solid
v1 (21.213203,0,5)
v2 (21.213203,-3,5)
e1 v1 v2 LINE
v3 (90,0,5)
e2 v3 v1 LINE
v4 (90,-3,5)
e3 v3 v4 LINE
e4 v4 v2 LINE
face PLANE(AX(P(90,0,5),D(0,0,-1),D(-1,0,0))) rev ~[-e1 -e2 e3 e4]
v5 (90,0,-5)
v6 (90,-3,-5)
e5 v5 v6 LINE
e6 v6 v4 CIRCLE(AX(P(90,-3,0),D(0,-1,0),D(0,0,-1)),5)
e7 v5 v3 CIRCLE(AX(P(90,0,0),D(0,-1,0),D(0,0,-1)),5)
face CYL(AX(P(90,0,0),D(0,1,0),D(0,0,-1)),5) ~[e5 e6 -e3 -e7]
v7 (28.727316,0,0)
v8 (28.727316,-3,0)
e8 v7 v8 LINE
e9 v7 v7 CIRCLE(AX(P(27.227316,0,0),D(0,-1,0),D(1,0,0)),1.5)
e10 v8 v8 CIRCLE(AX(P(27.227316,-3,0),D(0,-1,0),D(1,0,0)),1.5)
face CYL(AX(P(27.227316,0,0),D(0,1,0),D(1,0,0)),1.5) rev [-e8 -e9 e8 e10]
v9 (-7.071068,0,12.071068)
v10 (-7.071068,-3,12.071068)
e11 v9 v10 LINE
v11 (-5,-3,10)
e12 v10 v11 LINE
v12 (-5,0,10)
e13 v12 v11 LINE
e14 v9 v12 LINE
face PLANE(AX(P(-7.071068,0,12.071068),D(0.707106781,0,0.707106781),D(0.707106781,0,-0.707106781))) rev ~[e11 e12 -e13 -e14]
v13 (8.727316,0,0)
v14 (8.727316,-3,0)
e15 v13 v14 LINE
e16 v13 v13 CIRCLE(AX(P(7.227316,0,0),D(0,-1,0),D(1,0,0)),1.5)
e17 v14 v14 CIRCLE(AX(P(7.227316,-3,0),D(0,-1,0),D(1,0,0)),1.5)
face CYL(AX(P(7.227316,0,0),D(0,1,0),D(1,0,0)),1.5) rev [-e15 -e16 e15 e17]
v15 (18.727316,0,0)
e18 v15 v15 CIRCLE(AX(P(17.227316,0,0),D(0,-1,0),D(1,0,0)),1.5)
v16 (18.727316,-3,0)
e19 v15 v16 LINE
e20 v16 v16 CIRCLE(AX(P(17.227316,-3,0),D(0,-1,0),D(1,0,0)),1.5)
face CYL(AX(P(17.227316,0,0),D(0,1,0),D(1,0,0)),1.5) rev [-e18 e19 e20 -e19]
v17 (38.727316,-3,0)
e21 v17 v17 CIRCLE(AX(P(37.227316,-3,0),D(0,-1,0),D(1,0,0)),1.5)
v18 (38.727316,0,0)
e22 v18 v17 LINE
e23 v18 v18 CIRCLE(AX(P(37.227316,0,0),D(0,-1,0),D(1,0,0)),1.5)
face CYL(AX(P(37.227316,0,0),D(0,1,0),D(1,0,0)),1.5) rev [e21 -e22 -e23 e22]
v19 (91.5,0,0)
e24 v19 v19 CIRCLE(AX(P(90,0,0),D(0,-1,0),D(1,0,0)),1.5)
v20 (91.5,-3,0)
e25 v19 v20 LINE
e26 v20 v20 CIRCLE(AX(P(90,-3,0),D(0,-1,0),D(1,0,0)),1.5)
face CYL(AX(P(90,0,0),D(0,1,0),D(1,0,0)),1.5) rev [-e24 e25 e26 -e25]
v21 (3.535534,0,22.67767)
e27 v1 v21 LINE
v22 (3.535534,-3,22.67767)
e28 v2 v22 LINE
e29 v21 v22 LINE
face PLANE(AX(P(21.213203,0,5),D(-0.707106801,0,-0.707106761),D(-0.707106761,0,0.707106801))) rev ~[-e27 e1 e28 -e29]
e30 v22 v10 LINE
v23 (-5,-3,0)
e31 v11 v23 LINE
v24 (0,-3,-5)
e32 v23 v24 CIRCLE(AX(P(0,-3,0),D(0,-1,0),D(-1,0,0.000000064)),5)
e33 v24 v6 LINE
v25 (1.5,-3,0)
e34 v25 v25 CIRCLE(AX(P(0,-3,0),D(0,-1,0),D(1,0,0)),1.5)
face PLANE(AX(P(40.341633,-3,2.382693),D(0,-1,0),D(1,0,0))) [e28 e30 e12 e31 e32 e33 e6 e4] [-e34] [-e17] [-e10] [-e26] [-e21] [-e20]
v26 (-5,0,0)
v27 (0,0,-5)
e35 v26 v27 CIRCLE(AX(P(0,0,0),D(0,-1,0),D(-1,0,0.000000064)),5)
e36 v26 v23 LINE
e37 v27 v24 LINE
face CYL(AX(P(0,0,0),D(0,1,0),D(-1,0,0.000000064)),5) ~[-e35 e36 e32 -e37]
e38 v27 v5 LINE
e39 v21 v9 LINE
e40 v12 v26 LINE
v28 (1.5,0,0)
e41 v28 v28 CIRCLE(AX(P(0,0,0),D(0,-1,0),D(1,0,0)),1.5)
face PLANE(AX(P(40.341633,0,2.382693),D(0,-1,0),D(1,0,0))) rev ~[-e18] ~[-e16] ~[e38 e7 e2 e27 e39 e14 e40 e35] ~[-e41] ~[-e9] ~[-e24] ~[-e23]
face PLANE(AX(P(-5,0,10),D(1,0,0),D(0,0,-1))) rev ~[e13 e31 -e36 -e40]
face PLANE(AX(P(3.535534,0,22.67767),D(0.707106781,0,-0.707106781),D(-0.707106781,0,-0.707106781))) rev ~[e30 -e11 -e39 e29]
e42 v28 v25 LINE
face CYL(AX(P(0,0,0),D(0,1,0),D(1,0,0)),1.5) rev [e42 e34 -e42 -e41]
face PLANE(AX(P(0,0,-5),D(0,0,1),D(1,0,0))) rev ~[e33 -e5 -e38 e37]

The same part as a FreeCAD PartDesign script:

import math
import FreeCAD as App
import Part
import Sketcher
Q = App.Units.Quantity

doc = App.newDocument("Part")
body = doc.addObject("PartDesign::Body", "Body")

sketch1 = body.newObject("Sketcher::SketchObject", "Sketch")
sketch1.AttachmentSupport = (doc.getObject("XZ_Plane"), [""])
sketch1.MapMode = "FlatFace"
sketch1.addGeometry(Part.LineSegment(App.Vector(0, -5, 0), App.Vector(90, -5, 0)), False)
sketch1.addGeometry(Part.ArcOfCircle(Part.Circle(App.Vector(90, 0, 0), App.Vector(0, 0, 1), 5), math.radians(-90), math.radians(90)), False)
sketch1.addGeometry(Part.LineSegment(App.Vector(90, 5, 0), App.Vector(21.2, 5, 0)), False)
sketch1.addGeometry(Part.LineSegment(App.Vector(21.2, 5, 0), App.Vector(3.5, 22.7, 0)), False)
sketch1.addGeometry(Part.LineSegment(App.Vector(3.5, 22.7, 0), App.Vector(-7.1, 12.1, 0)), False)
sketch1.addGeometry(Part.LineSegment(App.Vector(-7.1, 12.1, 0), App.Vector(-5, 10, 0)), False)
sketch1.addGeometry(Part.LineSegment(App.Vector(-5, 10, 0), App.Vector(-5, 0, 0)), False)
sketch1.addGeometry(Part.ArcOfCircle(Part.Circle(App.Vector(0, 0, 0), App.Vector(0, 0, 1), 5), math.radians(180), math.radians(270)), False)
sketch1.addGeometry(Part.Circle(App.Vector(0, 0, 0), App.Vector(0, 0, 1), 1.5), False)
sketch1.addGeometry(Part.Circle(App.Vector(7.2, 0, 0), App.Vector(0, 0, 1), 1.5), False)
sketch1.addGeometry(Part.Circle(App.Vector(17.2, 0, 0), App.Vector(0, 0, 1), 1.5), False)
sketch1.addGeometry(Part.Circle(App.Vector(27.2, 0, 0), App.Vector(0, 0, 1), 1.5), False)
sketch1.addGeometry(Part.Circle(App.Vector(37.2, 0, 0), App.Vector(0, 0, 1), 1.5), False)
sketch1.addGeometry(Part.Circle(App.Vector(90, 0, 0), App.Vector(0, 0, 1), 1.5), False)
sketch1.addConstraint(Sketcher.Constraint("Tangent", 0, 2, 1, 1))
sketch1.addConstraint(Sketcher.Constraint("Tangent", 1, 2, 2, 1))
sketch1.addConstraint(Sketcher.Constraint("Coincident", 2, 2, 3, 1))
sketch1.addConstraint(Sketcher.Constraint("Coincident", 3, 2, 4, 1))
sketch1.addConstraint(Sketcher.Constraint("Coincident", 4, 2, 5, 1))
sketch1.addConstraint(Sketcher.Constraint("Coincident", 5, 2, 6, 1))
sketch1.addConstraint(Sketcher.Constraint("Tangent", 6, 2, 7, 1))
sketch1.addConstraint(Sketcher.Constraint("Tangent", 7, 2, 0, 1))
sketch1.addConstraint(Sketcher.Constraint("Horizontal", 0))
sketch1.addConstraint(Sketcher.Constraint("Horizontal", 2))
sketch1.addConstraint(Sketcher.Constraint("Vertical", 6))
sketch1.addConstraint(Sketcher.Constraint("Coincident", 7, 3, -1, 1))
sketch1.addConstraint(Sketcher.Constraint("Coincident", 8, 3, -1, 1))
sketch1.addConstraint(Sketcher.Constraint("Coincident", 13, 3, 1, 3))
sketch1.addConstraint(Sketcher.Constraint("Equal", 1, 7))
sketch1.addConstraint(Sketcher.Constraint("Equal", 8, 9))
sketch1.addConstraint(Sketcher.Constraint("Equal", 9, 10))
sketch1.addConstraint(Sketcher.Constraint("Equal", 10, 11))
sketch1.addConstraint(Sketcher.Constraint("Equal", 11, 12))
sketch1.addConstraint(Sketcher.Constraint("Equal", 12, 13))
sketch1.addConstraint(Sketcher.Constraint("PointOnObject", 9, 3, -1))
sketch1.addConstraint(Sketcher.Constraint("PointOnObject", 10, 3, -1))
sketch1.addConstraint(Sketcher.Constraint("PointOnObject", 11, 3, -1))
sketch1.addConstraint(Sketcher.Constraint("PointOnObject", 12, 3, -1))
sketch1.addConstraint(Sketcher.Constraint("Perpendicular", 3, 4))
sketch1.addConstraint(Sketcher.Constraint("Perpendicular", 4, 5))
sketch1.addConstraint(Sketcher.Constraint("Diameter", 8, Q("3 mm")))
sketch1.addConstraint(Sketcher.Constraint("Radius", 1, Q("5 mm")))
sketch1.addConstraint(Sketcher.Constraint("DistanceX", 0, 1, 0, 2, Q("90 mm")))
sketch1.addConstraint(Sketcher.Constraint("DistanceY", 6, 2, 6, 1, Q("10 mm")))
sketch1.addConstraint(Sketcher.Constraint("Angle", 3, Q("134.999998 deg")))
sketch1.addConstraint(Sketcher.Constraint("Distance", 3, Q("25 mm")))
sketch1.addConstraint(Sketcher.Constraint("Distance", 4, Q("15 mm")))
sketch1.addConstraint(Sketcher.Constraint("DistanceX", 9, 3, 10, 3, Q("10 mm")))
sketch1.addConstraint(Sketcher.Constraint("DistanceX", 10, 3, 11, 3, Q("10 mm")))
sketch1.addConstraint(Sketcher.Constraint("DistanceX", 11, 3, 12, 3, Q("10 mm")))
sketch1.addConstraint(Sketcher.Constraint("DistanceX", 3, 2, 9, 3, Q("3.691782 mm")))
pad1 = body.newObject("PartDesign::Pad", "Pad")
pad1.Profile = sketch1
pad1.Length = 3

doc.recompute()
